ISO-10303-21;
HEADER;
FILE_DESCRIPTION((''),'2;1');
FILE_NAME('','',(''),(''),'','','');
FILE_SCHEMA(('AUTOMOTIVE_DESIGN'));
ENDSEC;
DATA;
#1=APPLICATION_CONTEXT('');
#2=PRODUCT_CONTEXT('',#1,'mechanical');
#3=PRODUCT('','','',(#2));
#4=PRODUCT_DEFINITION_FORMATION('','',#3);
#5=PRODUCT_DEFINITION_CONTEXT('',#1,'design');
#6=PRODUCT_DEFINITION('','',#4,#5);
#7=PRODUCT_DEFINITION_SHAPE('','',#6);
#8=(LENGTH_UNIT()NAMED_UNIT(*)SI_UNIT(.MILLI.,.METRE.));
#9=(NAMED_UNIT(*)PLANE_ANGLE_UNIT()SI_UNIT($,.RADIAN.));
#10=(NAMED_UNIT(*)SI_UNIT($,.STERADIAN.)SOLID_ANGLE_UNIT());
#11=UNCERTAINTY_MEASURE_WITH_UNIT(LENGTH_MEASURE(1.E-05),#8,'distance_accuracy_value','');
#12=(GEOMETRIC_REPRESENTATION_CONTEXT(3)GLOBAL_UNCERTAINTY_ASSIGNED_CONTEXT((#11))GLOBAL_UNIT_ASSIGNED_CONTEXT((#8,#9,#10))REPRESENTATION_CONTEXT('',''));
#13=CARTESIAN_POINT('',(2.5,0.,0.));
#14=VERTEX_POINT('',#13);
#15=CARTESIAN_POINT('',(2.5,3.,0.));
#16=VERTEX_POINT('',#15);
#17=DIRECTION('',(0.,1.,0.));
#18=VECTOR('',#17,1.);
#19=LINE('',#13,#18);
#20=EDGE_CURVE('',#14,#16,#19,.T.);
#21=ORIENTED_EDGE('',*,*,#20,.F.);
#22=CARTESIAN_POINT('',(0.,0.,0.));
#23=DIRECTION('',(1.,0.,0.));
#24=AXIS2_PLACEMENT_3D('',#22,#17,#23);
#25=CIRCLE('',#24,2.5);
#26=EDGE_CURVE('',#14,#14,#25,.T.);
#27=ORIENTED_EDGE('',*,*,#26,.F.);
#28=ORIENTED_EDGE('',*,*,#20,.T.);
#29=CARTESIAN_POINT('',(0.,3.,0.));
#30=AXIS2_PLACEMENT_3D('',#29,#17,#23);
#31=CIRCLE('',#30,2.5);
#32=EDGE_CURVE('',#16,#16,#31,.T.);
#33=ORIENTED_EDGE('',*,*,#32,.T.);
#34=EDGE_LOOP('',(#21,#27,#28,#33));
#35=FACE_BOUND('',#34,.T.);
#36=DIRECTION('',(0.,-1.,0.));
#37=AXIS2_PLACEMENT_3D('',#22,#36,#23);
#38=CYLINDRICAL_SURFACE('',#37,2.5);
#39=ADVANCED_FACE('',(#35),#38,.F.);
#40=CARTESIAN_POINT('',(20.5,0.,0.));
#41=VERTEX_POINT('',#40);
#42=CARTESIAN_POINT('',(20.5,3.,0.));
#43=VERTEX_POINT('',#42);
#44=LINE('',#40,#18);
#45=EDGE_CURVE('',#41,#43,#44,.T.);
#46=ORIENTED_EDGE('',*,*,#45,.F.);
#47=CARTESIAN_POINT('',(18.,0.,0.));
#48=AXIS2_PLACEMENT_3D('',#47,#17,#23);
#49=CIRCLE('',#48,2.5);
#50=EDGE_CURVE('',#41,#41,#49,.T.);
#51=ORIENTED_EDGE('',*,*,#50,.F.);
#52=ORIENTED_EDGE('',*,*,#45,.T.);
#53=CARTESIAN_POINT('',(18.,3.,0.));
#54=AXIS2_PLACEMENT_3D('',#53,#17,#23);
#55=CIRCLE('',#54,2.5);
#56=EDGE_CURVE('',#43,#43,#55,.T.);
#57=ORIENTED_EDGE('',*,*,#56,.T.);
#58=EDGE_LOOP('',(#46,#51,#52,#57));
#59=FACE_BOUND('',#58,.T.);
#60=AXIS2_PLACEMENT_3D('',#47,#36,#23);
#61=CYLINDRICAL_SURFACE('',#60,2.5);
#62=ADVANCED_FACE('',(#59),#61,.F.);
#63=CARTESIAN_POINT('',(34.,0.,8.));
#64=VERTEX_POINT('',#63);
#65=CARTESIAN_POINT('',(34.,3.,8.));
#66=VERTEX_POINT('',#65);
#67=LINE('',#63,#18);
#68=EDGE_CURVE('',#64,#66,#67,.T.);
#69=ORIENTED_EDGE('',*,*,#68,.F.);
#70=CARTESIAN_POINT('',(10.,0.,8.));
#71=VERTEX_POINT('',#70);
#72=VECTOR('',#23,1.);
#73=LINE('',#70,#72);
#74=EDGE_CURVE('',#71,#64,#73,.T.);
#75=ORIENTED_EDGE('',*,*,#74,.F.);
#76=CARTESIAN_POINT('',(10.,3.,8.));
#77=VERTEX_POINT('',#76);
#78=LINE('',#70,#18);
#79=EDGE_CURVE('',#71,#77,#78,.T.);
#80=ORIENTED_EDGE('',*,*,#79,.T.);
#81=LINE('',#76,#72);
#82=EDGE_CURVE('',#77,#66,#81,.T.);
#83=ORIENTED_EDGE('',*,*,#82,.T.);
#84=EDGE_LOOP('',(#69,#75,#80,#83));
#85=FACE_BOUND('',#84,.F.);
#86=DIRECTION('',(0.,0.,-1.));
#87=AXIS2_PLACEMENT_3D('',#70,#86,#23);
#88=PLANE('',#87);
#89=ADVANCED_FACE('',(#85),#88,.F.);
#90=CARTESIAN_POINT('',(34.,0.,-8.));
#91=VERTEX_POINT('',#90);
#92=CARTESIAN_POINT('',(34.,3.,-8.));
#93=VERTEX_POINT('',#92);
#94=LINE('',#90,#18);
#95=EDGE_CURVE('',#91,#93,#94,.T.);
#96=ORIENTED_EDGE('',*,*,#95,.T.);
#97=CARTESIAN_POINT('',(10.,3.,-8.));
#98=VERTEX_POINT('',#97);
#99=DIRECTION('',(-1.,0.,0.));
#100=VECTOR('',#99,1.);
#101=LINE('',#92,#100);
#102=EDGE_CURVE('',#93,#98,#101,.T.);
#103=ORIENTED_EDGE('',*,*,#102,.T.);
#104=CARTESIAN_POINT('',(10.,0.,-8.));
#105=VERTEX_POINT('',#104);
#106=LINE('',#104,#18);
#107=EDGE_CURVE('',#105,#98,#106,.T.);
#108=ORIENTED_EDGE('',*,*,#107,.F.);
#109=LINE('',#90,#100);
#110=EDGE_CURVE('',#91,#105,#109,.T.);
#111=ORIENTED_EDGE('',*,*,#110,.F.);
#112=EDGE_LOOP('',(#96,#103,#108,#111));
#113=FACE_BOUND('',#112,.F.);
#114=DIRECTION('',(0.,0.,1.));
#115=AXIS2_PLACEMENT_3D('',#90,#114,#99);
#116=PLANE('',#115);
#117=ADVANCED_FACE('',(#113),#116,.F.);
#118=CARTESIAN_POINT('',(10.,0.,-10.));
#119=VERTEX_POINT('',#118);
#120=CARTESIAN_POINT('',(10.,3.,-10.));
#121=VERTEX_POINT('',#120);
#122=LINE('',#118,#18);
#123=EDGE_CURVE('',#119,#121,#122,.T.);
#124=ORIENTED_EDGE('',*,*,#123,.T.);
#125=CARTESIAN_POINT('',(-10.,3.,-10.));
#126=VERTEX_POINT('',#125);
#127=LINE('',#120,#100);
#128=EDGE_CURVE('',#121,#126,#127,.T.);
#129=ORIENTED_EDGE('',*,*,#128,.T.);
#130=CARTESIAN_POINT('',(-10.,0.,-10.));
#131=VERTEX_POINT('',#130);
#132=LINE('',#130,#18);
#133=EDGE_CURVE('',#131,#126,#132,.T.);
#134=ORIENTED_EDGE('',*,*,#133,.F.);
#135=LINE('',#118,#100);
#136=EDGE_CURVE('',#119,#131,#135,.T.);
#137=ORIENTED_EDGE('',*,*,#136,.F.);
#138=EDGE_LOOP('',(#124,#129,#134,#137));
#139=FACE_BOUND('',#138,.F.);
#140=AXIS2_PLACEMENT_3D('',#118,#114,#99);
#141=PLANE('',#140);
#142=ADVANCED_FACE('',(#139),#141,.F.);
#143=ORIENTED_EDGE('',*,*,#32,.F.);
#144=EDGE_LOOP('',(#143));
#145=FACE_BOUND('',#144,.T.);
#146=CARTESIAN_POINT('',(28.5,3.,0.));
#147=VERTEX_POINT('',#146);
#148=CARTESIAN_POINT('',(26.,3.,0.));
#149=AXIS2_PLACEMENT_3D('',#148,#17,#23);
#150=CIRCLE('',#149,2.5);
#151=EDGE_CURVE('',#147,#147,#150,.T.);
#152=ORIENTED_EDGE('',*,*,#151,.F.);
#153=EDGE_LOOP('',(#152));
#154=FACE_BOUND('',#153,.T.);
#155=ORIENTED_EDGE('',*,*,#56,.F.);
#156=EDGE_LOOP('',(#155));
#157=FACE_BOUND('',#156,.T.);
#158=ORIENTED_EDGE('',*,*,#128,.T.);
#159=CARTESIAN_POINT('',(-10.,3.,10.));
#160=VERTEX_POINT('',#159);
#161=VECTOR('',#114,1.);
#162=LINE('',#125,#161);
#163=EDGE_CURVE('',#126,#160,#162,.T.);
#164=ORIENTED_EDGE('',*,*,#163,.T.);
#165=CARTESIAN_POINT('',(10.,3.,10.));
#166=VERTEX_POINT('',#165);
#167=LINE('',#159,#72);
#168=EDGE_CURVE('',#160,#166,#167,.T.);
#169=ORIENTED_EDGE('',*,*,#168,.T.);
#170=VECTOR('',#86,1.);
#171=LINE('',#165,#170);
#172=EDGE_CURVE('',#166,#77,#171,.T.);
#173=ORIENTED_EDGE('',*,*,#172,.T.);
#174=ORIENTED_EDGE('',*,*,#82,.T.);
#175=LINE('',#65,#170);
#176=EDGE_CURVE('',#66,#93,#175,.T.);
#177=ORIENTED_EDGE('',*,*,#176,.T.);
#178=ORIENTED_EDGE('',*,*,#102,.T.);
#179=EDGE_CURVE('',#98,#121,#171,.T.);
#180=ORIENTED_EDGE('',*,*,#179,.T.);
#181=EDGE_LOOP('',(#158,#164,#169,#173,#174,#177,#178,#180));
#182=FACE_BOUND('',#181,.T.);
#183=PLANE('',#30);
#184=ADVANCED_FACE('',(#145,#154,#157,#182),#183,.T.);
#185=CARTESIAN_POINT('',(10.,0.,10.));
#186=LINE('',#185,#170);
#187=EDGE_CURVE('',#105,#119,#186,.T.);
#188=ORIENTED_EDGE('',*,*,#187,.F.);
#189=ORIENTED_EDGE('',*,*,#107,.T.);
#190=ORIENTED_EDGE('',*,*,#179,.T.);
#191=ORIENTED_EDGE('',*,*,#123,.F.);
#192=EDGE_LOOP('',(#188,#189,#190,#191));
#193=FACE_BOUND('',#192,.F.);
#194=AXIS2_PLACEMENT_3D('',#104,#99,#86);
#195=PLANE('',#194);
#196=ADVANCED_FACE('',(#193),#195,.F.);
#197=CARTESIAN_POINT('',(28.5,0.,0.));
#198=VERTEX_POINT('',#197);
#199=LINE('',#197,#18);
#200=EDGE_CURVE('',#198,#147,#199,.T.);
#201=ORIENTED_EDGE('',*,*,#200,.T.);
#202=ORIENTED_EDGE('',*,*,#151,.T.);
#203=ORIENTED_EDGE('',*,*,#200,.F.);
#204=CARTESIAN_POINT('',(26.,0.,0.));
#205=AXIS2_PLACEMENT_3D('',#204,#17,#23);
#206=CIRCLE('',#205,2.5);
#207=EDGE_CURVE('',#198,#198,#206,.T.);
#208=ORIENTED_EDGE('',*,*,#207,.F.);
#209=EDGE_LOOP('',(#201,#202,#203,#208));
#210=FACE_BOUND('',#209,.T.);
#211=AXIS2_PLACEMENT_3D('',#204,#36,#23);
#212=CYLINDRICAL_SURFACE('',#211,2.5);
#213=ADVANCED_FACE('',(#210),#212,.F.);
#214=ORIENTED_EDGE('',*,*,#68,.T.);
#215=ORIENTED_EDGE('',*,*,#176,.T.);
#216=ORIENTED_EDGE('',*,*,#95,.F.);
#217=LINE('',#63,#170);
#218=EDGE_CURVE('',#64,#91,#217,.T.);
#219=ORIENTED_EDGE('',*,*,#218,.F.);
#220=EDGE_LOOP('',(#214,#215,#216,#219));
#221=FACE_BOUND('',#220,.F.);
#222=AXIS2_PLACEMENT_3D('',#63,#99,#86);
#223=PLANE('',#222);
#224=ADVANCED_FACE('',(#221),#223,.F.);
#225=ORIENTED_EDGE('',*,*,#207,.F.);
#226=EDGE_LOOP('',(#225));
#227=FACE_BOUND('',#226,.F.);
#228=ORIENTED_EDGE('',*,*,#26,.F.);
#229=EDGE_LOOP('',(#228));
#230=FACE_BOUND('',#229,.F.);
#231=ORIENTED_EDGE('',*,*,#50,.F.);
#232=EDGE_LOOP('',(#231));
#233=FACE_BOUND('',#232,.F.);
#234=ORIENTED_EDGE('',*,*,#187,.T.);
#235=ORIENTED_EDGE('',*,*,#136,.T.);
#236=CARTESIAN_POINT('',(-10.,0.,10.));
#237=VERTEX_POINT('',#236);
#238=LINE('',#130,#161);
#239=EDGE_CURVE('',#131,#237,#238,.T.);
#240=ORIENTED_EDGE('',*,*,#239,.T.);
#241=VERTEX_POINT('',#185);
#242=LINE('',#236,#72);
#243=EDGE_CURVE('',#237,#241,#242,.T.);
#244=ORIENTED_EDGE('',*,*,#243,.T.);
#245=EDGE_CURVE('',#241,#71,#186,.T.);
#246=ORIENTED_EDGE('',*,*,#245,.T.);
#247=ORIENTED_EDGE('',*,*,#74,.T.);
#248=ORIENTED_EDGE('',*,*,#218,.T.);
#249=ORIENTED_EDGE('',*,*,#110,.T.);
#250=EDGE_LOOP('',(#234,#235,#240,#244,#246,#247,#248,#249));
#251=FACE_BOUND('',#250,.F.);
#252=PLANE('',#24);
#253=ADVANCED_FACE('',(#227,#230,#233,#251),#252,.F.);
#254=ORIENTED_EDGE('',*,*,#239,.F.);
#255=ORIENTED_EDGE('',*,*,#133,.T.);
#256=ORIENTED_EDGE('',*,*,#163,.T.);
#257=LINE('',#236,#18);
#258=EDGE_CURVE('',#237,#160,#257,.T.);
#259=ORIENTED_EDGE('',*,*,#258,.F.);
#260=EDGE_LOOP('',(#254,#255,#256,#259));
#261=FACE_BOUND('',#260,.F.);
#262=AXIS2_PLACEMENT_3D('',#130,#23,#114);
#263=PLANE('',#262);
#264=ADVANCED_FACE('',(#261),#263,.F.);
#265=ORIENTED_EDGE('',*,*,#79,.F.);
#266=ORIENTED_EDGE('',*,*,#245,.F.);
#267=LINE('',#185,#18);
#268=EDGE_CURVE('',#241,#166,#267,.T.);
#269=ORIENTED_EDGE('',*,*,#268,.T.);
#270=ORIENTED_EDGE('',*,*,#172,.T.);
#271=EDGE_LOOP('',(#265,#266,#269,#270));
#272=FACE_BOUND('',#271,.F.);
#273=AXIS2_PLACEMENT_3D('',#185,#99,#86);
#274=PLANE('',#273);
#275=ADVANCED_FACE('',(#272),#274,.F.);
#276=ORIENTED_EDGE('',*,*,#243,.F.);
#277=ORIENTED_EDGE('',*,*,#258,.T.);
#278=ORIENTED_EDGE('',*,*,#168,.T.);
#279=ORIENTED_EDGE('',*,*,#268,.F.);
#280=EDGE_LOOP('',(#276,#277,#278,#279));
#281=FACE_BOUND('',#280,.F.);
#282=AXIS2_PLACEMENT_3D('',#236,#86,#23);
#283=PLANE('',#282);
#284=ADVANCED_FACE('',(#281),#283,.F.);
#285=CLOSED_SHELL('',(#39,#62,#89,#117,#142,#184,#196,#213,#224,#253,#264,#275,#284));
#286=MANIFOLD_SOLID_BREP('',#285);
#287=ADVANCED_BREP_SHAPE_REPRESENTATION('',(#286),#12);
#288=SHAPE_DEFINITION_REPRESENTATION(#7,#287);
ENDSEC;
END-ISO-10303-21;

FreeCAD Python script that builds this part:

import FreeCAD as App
import Part
import Sketcher

doc = App.newDocument("Part")
body = doc.addObject("PartDesign::Body", "Body")

# Sketch on XZ plane
sketch1 = body.newObject("Sketcher::SketchObject", "Sketch")
sketch1.AttachmentSupport = (doc.getObject("XZ_Plane"), [""])
sketch1.MapMode = "FlatFace"
sketch1.addGeometry([
    Part.LineSegment(App.Vector(10, -8, 0), App.Vector(10, -10, 0)),  # 0
    Part.LineSegment(App.Vector(10, -10, 0), App.Vector(-10, -10, 0)),  # 1
    Part.LineSegment(App.Vector(-10, -10, 0), App.Vector(-10, 10, 0)),  # 2
    Part.LineSegment(App.Vector(-10, 10, 0), App.Vector(10, 10, 0)),  # 3
    Part.LineSegment(App.Vector(10, 10, 0), App.Vector(10, 8, 0)),  # 4
    Part.LineSegment(App.Vector(10, 8, 0), App.Vector(34, 8, 0)),  # 5
    Part.LineSegment(App.Vector(34, 8, 0), App.Vector(34, -8, 0)),  # 6
    Part.LineSegment(App.Vector(34, -8, 0), App.Vector(10, -8, 0)),  # 7
    Part.Circle(App.Vector(0, 0, 0), App.Vector(0, 0, 1), 2.5),  # 8
    Part.Circle(App.Vector(26, 0, 0), App.Vector(0, 0, 1), 2.5),  # 9
    Part.Circle(App.Vector(18, 0, 0), App.Vector(0, 0, 1), 2.5),  # 10
], False)
sketch1.addConstraint([
    Sketcher.Constraint("Coincident", 0, 2, 1, 1),
    Sketcher.Constraint("Coincident", 1, 2, 2, 1),
    Sketcher.Constraint("Coincident", 2, 2, 3, 1),
    Sketcher.Constraint("Coincident", 3, 2, 4, 1),
    Sketcher.Constraint("Coincident", 4, 2, 5, 1),
    Sketcher.Constraint("Coincident", 5, 2, 6, 1),
    Sketcher.Constraint("Coincident", 6, 2, 7, 1),
    Sketcher.Constraint("Coincident", 7, 2, 0, 1),
    Sketcher.Constraint("Vertical", 0),
    Sketcher.Constraint("Horizontal", 1),
    Sketcher.Constraint("Vertical", 2),
    Sketcher.Constraint("Horizontal", 3),
    Sketcher.Constraint("Vertical", 4),
    Sketcher.Constraint("Horizontal", 5),
    Sketcher.Constraint("Vertical", 6),
    Sketcher.Constraint("Horizontal", 7),
    Sketcher.Constraint("Coincident", 8, 3, -1, 1),
    Sketcher.Constraint("Equal", 8, 9),
    Sketcher.Constraint("Equal", 9, 10),
    Sketcher.Constraint("Symmetric", 0, 2, 2, 2, -1, 1),
    Sketcher.Constraint("Symmetric", 4, 2, 7, 2, -1),
    Sketcher.Constraint("PointOnObject", 9, 3, -1),
    Sketcher.Constraint("PointOnObject", 10, 3, -1),
    Sketcher.Constraint("Equal", 3, 2),
    Sketcher.Constraint("Diameter", 8, 5.0),
    Sketcher.Constraint("DistanceX", 1, 2, 1, 1, 20.0),
    Sketcher.Constraint("DistanceX", 5, 1, 5, 2, 24.0),
    Sketcher.Constraint("DistanceY", 6, 2, 6, 1, 16.0),
    Sketcher.Constraint("DistanceX", 10, 3, 9, 3, 8.0),
    Sketcher.Constraint("DistanceX", 0, 2, 10, 3, 8.0),
])
pad1 = body.newObject("PartDesign::Pad", "Pad")
pad1.Profile = sketch1
pad1.Length = 3
pad1.Reversed = True

doc.recompute()
